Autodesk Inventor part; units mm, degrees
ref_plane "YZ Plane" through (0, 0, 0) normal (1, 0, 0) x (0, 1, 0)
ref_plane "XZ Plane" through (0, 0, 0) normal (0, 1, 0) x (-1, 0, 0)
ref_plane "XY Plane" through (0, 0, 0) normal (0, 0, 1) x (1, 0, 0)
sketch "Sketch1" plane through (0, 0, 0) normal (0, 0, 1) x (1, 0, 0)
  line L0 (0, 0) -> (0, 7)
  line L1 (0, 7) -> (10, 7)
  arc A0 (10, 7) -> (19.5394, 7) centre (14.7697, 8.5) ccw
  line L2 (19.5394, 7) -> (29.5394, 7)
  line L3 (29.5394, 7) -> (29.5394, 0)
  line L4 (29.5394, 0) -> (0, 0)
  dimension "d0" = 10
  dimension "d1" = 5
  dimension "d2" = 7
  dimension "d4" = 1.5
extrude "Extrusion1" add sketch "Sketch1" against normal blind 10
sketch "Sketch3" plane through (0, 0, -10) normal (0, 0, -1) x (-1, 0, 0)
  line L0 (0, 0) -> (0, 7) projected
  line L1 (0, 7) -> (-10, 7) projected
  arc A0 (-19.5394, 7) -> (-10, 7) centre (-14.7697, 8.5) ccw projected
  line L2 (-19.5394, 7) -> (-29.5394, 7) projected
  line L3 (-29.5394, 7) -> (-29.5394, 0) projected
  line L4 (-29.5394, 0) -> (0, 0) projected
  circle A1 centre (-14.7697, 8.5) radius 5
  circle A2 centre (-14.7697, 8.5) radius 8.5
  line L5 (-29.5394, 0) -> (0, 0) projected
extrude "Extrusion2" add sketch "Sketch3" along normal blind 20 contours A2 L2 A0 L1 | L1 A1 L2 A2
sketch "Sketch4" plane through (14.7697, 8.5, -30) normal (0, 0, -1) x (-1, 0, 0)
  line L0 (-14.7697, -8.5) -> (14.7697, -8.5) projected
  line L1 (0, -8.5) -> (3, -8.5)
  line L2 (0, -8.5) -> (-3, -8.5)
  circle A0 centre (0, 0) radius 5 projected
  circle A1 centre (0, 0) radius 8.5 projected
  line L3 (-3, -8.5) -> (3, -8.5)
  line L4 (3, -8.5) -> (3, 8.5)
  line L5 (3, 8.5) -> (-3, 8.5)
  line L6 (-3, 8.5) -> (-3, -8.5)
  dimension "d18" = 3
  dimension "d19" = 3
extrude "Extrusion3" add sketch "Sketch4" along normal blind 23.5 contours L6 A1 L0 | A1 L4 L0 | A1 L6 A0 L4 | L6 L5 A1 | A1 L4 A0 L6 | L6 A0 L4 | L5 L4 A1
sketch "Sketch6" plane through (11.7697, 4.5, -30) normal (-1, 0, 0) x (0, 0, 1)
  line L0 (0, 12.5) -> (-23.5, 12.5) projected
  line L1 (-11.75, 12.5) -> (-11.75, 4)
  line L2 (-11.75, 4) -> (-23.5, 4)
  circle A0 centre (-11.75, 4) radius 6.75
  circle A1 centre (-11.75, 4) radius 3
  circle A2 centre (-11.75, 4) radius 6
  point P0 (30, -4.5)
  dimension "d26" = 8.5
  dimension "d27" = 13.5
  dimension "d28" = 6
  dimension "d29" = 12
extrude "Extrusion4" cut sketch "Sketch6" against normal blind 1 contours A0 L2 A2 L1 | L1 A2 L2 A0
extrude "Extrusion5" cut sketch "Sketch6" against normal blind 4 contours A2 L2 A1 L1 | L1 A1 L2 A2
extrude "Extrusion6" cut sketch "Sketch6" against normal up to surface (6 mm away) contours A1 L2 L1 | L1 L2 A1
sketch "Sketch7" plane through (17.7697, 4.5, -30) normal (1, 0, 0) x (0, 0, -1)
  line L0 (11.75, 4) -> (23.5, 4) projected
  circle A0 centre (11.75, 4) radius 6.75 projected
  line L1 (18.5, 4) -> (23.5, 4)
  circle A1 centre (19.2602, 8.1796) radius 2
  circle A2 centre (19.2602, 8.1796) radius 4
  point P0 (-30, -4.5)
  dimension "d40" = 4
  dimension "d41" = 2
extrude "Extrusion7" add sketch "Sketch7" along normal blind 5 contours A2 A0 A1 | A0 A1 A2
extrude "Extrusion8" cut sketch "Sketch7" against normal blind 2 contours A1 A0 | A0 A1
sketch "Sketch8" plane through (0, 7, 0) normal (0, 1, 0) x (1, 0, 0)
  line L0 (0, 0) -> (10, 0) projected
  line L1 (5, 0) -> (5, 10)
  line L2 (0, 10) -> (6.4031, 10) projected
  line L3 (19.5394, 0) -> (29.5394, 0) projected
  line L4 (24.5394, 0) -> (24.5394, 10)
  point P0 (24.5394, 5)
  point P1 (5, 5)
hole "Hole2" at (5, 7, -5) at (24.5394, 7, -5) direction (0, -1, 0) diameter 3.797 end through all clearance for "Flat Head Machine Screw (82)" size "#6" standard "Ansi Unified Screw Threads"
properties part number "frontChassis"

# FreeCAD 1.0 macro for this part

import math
import FreeCAD as App
import Part
import Sketcher
from FreeCAD import Vector
Q = App.Units.Quantity

doc = App.newDocument("Part")
body = doc.addObject("PartDesign::Body", "Body")

sketch1 = body.newObject("Sketcher::SketchObject", "Sketch")
sketch1.AttachmentSupport = (doc.getObject("XY_Plane"), [""])
sketch1.MapMode = "FlatFace"
sketch1.addGeometry([
    Part.LineSegment(Vector(0, 7, 0), Vector(0, 0, 0)),
    Part.LineSegment(Vector(0, 0, 0), Vector(30, 0, 0)),
    Part.LineSegment(Vector(30, 0, 0), Vector(30, 7, 0)),
    Part.LineSegment(Vector(30, 7, 0), Vector(20, 7, 0)),
    Part.ArcOfCircle(Part.Circle(Vector(15, 8, 0), Vector(0, 0, 1), 5), math.radians(-163), math.radians(-17)),
    Part.LineSegment(Vector(10, 7, 0), Vector(0, 7, 0)),
], False)
sketch1.addConstraint([
    Sketcher.Constraint("Coincident", 0, 2, 1, 1),
    Sketcher.Constraint("Coincident", 1, 2, 2, 1),
    Sketcher.Constraint("Coincident", 2, 2, 3, 1),
    Sketcher.Constraint("Coincident", 3, 2, 4, 2),
    Sketcher.Constraint("Coincident", 4, 1, 5, 1),
    Sketcher.Constraint("Coincident", 5, 2, 0, 1),
    Sketcher.Constraint("Vertical", 0),
    Sketcher.Constraint("Horizontal", 1),
    Sketcher.Constraint("Vertical", 2),
    Sketcher.Constraint("Horizontal", 3),
    Sketcher.Constraint("Horizontal", 5),
    Sketcher.Constraint("Coincident", 0, 2, -1, 1),
    Sketcher.Constraint("Horizontal", 3, 2, 4, 1),
    Sketcher.Constraint("Equal", 3, 5),
    Sketcher.Constraint("Radius", 4, Q("5 mm")),
    Sketcher.Constraint("DistanceX", 3, 2, 3, 1, Q("10 mm")),
    Sketcher.Constraint("DistanceY", 0, 2, 0, 1, Q("7 mm")),
    Sketcher.Constraint("DistanceY", 2, 2, 4, 3, Q("1.5 mm")),
])
pad1 = body.newObject("PartDesign::Pad", "Pad")
pad1.Profile = sketch1
pad1.Length = 10
pad1.Reversed = True

sketch2 = body.newObject("Sketcher::SketchObject", "Sketch001")
sketch2.AttachmentSupport = (doc.getObject("XY_Plane"), [""])
sketch2.MapMode = "FlatFace"
sketch2.AttachmentOffset = App.Placement(Vector(0, 0, -10), App.Rotation())
sketch2.addGeometry([
    Part.Circle(Vector(15, 8, 0), Vector(0, 0, 1), 8),
    Part.Circle(Vector(15, 8, 0), Vector(0, 0, 1), 5),
], False)
sketch2.addConstraint([
    Sketcher.Constraint("Coincident", 1, 3, 0, 3),
    Sketcher.Constraint("Diameter", 0, Q("17 mm")),
    Sketcher.Constraint("Diameter", 1, Q("10 mm")),
    Sketcher.Constraint("DistanceY", -1, 1, 0, 3, Q("8.5 mm")),
    Sketcher.Constraint("DistanceX", -1, 1, 0, 3, Q("14.7697 mm")),
])
pad2 = body.newObject("PartDesign::Pad", "Pad001")
pad2.Profile = sketch2
pad2.Length = 20
pad2.Reversed = True

sketch3 = body.newObject("Sketcher::SketchObject", "Sketch002")
sketch3.AttachmentSupport = (doc.getObject("XY_Plane"), [""])
sketch3.MapMode = "FlatFace"
sketch3.AttachmentOffset = App.Placement(Vector(0, 0, -30), App.Rotation())
sketch3.addGeometry([
    Part.LineSegment(Vector(18, 0, 0), Vector(12, 0, 0)),
    Part.LineSegment(Vector(12, 0, 0), Vector(12, 17, 0)),
    Part.LineSegment(Vector(12, 17, 0), Vector(18, 17, 0)),
    Part.LineSegment(Vector(18, 17, 0), Vector(18, 0, 0)),
], False)
sketch3.addConstraint([
    Sketcher.Constraint("Coincident", 0, 2, 1, 1),
    Sketcher.Constraint("Coincident", 1, 2, 2, 1),
    Sketcher.Constraint("Coincident", 2, 2, 3, 1),
    Sketcher.Constraint("Coincident", 3, 2, 0, 1),
    Sketcher.Constraint("Horizontal", 0),
    Sketcher.Constraint("Vertical", 1),
    Sketcher.Constraint("Horizontal", 2),
    Sketcher.Constraint("Vertical", 3),
    Sketcher.Constraint("PointOnObject", 0, 2, -1),
    Sketcher.Constraint("DistanceX", 0, 2, 0, 1, Q("6 mm")),
    Sketcher.Constraint("DistanceY", 1, 1, 1, 2, Q("17 mm")),
    Sketcher.Constraint("DistanceX", -1, 1, 0, 2, Q("11.7697 mm")),
])
pad3 = body.newObject("PartDesign::Pad", "Pad002")
pad3.Profile = sketch3
pad3.Length = 23.5
pad3.Reversed = True

sketch4 = body.newObject("Sketcher::SketchObject", "Sketch003")
sketch4.AttachmentSupport = (doc.getObject("YZ_Plane"), [""])
sketch4.MapMode = "FlatFace"
sketch4.AttachmentOffset = App.Placement(Vector(0, 0, 11.7697), App.Rotation())
sketch4.addGeometry([
    Part.Circle(Vector(8, -42, 0), Vector(0, 0, 1), 7),
    Part.Circle(Vector(8, -42, 0), Vector(0, 0, 1), 6),
], False)
sketch4.addConstraint([
    Sketcher.Constraint("Coincident", 1, 3, 0, 3),
    Sketcher.Constraint("Diameter", 1, Q("12 mm")),
    Sketcher.Constraint("Diameter", 0, Q("13.5 mm")),
    Sketcher.Constraint("DistanceX", -1, 1, 0, 3, Q("8.5 mm")),
    Sketcher.Constraint("DistanceY", 0, 3, -1, 1, Q("41.75 mm")),
])
pocket1 = body.newObject("PartDesign::Pocket", "Pocket")
pocket1.Profile = sketch4
pocket1.Length = 1
pocket1.Reversed = True

sketch5 = body.newObject("Sketcher::SketchObject", "Sketch004")
sketch5.AttachmentSupport = (doc.getObject("YZ_Plane"), [""])
sketch5.MapMode = "FlatFace"
sketch5.AttachmentOffset = App.Placement(Vector(0, 0, 11.7697), App.Rotation())
sketch5.addGeometry([
    Part.Circle(Vector(8.5, -41.8, 0), Vector(0, 0, 1), 6),
    Part.Circle(Vector(8.5, -41.8, 0), Vector(0, 0, 1), 3),
], False)
sketch5.addConstraint([
    Sketcher.Constraint("Coincident", 1, 3, 0, 3),
    Sketcher.Constraint("Diameter", 0, Q("12 mm")),
    Sketcher.Constraint("Diameter", 1, Q("6 mm")),
    Sketcher.Constraint("DistanceX", -1, 1, 0, 3, Q("8.5 mm")),
    Sketcher.Constraint("DistanceY", 0, 3, -1, 1, Q("41.75 mm")),
])
pocket2 = body.newObject("PartDesign::Pocket", "Pocket001")
pocket2.Profile = sketch5
pocket2.Length = 4
pocket2.Reversed = True

sketch6 = body.newObject("Sketcher::SketchObject", "Sketch005")
sketch6.AttachmentSupport = (doc.getObject("YZ_Plane"), [""])
sketch6.MapMode = "FlatFace"
sketch6.AttachmentOffset = App.Placement(Vector(0, 0, 11.7697), App.Rotation())
sketch6.addGeometry(Part.Circle(Vector(8.5, -41.8, 0), Vector(0, 0, 1), 3), False)
sketch6.addConstraint([
    Sketcher.Constraint("Diameter", 0, Q("6 mm")),
    Sketcher.Constraint("DistanceX", -1, 1, 0, 3, Q("8.5 mm")),
    Sketcher.Constraint("DistanceY", 0, 3, -1, 1, Q("41.75 mm")),
])
pocket3 = body.newObject("PartDesign::Pocket", "Pocket002")
pocket3.Profile = sketch6
pocket3.Length = 6
pocket3.Reversed = True

sketch7 = body.newObject("Sketcher::SketchObject", "Sketch006")
sketch7.AttachmentSupport = (doc.getObject("YZ_Plane"), [""])
sketch7.MapMode = "FlatFace"
sketch7.AttachmentOffset = App.Placement(Vector(0, 0, 17.7697), App.Rotation())
sketch7.addGeometry([
    Part.Circle(Vector(12.7, -49.3, 0), Vector(0, 0, 1), 4),
    Part.Circle(Vector(12.7, -49.3, 0), Vector(0, 0, 1), 2),
], False)
sketch7.addConstraint([
    Sketcher.Constraint("Coincident", 1, 3, 0, 3),
    Sketcher.Constraint("Diameter", 0, Q("8 mm")),
    Sketcher.Constraint("Diameter", 1, Q("4 mm")),
    Sketcher.Constraint("DistanceX", -1, 1, 0, 3, Q("12.6796 mm")),
    Sketcher.Constraint("DistanceY", 0, 3, -1, 1, Q("49.2602 mm")),
])
pad4 = body.newObject("PartDesign::Pad", "Pad003")
pad4.Profile = sketch7
pad4.Length = 5

sketch8 = body.newObject("Sketcher::SketchObject", "Sketch007")
sketch8.AttachmentSupport = (doc.getObject("YZ_Plane"), [""])
sketch8.MapMode = "FlatFace"
sketch8.AttachmentOffset = App.Placement(Vector(0, 0, 17.7697), App.Rotation())
sketch8.addGeometry(Part.Circle(Vector(12.7, -49.3, 0), Vector(0, 0, 1), 2), False)
sketch8.addConstraint([
    Sketcher.Constraint("Diameter", 0, Q("4 mm")),
    Sketcher.Constraint("DistanceX", -1, 1, 0, 3, Q("12.6796 mm")),
    Sketcher.Constraint("DistanceY", 0, 3, -1, 1, Q("49.2602 mm")),
])
pocket4 = body.newObject("PartDesign::Pocket", "Pocket003")
pocket4.Profile = sketch8
pocket4.Length = 2

sketch9 = body.newObject("Sketcher::SketchObject", "Sketch008")
sketch9.AttachmentSupport = (doc.getObject("XZ_Plane"), [""])
sketch9.MapMode = "FlatFace"
sketch9.AttachmentOffset = App.Placement(Vector(0, 0, -7), App.Rotation())
sketch9.addGeometry([
    Part.Circle(Vector(5, -5, 0), Vector(0, 0, 1), 1.9),
    Part.Circle(Vector(24.5, -5, 0), Vector(0, 0, 1), 1.9),
], False)
sketch9.addConstraint([
    Sketcher.Constraint("Equal", 0, 1),
    Sketcher.Constraint("Horizontal", 0, 3, 1, 3),
    Sketcher.Constraint("Diameter", 0, Q("3.797 mm")),
    Sketcher.Constraint("DistanceX", -1, 1, 0, 3, Q("5 mm")),
    Sketcher.Constraint("DistanceY", 0, 3, -1, 1, Q("5 mm")),
    Sketcher.Constraint("DistanceX", -1, 1, 1, 3, Q("24.5394 mm")),
])
doc.recompute()
hole = body.newObject("PartDesign::Hole", "Hole")
hole.Profile = sketch9
hole.ThreadType = "None"
hole.Diameter = 3.797
hole.DepthType = "ThroughAll"
hole.Reversed = True

doc.recompute()
